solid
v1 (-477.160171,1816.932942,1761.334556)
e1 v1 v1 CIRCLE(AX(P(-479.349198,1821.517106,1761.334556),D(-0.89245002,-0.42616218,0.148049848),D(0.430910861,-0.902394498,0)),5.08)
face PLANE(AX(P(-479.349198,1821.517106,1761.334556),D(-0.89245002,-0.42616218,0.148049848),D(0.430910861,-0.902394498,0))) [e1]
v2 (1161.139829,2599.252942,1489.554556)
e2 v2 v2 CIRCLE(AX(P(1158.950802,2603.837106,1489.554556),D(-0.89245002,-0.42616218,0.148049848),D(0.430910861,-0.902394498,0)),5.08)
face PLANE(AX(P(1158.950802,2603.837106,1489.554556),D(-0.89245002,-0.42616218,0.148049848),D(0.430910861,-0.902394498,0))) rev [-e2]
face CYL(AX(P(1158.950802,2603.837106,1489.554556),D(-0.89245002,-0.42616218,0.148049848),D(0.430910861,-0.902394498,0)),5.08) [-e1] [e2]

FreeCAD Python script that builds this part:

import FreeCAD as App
import Part
import Sketcher

V = App.Vector
Q = App.Units.Quantity

doc = App.newDocument("Part")
params = doc.addObject("Spreadsheet::Sheet", "Params")
for row, (alias, value) in enumerate([
    ("sketch1_diameter", "0.4 in"),
    ("sketch2_height", "10.7 in"),
], start=1):
    params.set(f"A{row}", alias)
    params.set(f"B{row}", "=" + value)
    params.setAlias(f"B{row}", alias)

body = doc.addObject("PartDesign::Body", "Body")

# Sketch on an angled plane
sketch1 = body.newObject("Sketcher::SketchObject", "Sketch")
sketch1.Placement = App.Placement(V(1158.950802, 2603.837106, 1489.554556), App.Rotation(V(0.430910861, -0.902394498, 0), V(0.133599368, 0.063796287, 0.9889799), V(-0.89245002, -0.42616218, 0.148049848), "ZXY"))
sketch1.addGeometry(Part.Circle(V(0, 0, 0), V(0, 0, 1), 5), False)
sketch1.addConstraint([
    Sketcher.Constraint("Coincident", 0, 3, -1, 1),
    Sketcher.Constraint("Diameter", 0, Q("0.4 in")),
])
sketch1.setExpression("Constraints[1]", "Params.sketch1_diameter")

# Sketch on an angled plane
sketch2 = body.newObject("Sketcher::SketchObject", "Sketch001")
sketch2.Placement = App.Placement(V(-797.307381, 1669.685912, 0), App.Rotation(V(-0.902394498, -0.430910861, 0), V(0, 0, 1), V(-0.430910861, 0.902394498, 0), "ZXY"))
sketch2.addGeometry(Part.LineSegment(V(-2168, 1490, 0), V(-352, 1761, 0)), False)
sketch2.addConstraint([
    Sketcher.Constraint("DistanceY", 0, 1, 0, 2, Q("10.7 in")),
    Sketcher.Constraint("DistanceX", 0, 1, 0, 2, 1815.503091),
    Sketcher.Constraint("DistanceX", 0, 1, -1, 1, 2167.852516),
    Sketcher.Constraint("DistanceY", -1, 1, 0, 1, 1489.554557),
])
sketch2.setExpression("Constraints[0]", "Params.sketch2_height")
doc.recompute()

additivepipe = body.newObject("PartDesign::AdditivePipe", "AdditivePipe")
additivepipe.Profile = sketch1
additivepipe.Spine = (sketch2, ["Edge1"])

doc.recompute()
